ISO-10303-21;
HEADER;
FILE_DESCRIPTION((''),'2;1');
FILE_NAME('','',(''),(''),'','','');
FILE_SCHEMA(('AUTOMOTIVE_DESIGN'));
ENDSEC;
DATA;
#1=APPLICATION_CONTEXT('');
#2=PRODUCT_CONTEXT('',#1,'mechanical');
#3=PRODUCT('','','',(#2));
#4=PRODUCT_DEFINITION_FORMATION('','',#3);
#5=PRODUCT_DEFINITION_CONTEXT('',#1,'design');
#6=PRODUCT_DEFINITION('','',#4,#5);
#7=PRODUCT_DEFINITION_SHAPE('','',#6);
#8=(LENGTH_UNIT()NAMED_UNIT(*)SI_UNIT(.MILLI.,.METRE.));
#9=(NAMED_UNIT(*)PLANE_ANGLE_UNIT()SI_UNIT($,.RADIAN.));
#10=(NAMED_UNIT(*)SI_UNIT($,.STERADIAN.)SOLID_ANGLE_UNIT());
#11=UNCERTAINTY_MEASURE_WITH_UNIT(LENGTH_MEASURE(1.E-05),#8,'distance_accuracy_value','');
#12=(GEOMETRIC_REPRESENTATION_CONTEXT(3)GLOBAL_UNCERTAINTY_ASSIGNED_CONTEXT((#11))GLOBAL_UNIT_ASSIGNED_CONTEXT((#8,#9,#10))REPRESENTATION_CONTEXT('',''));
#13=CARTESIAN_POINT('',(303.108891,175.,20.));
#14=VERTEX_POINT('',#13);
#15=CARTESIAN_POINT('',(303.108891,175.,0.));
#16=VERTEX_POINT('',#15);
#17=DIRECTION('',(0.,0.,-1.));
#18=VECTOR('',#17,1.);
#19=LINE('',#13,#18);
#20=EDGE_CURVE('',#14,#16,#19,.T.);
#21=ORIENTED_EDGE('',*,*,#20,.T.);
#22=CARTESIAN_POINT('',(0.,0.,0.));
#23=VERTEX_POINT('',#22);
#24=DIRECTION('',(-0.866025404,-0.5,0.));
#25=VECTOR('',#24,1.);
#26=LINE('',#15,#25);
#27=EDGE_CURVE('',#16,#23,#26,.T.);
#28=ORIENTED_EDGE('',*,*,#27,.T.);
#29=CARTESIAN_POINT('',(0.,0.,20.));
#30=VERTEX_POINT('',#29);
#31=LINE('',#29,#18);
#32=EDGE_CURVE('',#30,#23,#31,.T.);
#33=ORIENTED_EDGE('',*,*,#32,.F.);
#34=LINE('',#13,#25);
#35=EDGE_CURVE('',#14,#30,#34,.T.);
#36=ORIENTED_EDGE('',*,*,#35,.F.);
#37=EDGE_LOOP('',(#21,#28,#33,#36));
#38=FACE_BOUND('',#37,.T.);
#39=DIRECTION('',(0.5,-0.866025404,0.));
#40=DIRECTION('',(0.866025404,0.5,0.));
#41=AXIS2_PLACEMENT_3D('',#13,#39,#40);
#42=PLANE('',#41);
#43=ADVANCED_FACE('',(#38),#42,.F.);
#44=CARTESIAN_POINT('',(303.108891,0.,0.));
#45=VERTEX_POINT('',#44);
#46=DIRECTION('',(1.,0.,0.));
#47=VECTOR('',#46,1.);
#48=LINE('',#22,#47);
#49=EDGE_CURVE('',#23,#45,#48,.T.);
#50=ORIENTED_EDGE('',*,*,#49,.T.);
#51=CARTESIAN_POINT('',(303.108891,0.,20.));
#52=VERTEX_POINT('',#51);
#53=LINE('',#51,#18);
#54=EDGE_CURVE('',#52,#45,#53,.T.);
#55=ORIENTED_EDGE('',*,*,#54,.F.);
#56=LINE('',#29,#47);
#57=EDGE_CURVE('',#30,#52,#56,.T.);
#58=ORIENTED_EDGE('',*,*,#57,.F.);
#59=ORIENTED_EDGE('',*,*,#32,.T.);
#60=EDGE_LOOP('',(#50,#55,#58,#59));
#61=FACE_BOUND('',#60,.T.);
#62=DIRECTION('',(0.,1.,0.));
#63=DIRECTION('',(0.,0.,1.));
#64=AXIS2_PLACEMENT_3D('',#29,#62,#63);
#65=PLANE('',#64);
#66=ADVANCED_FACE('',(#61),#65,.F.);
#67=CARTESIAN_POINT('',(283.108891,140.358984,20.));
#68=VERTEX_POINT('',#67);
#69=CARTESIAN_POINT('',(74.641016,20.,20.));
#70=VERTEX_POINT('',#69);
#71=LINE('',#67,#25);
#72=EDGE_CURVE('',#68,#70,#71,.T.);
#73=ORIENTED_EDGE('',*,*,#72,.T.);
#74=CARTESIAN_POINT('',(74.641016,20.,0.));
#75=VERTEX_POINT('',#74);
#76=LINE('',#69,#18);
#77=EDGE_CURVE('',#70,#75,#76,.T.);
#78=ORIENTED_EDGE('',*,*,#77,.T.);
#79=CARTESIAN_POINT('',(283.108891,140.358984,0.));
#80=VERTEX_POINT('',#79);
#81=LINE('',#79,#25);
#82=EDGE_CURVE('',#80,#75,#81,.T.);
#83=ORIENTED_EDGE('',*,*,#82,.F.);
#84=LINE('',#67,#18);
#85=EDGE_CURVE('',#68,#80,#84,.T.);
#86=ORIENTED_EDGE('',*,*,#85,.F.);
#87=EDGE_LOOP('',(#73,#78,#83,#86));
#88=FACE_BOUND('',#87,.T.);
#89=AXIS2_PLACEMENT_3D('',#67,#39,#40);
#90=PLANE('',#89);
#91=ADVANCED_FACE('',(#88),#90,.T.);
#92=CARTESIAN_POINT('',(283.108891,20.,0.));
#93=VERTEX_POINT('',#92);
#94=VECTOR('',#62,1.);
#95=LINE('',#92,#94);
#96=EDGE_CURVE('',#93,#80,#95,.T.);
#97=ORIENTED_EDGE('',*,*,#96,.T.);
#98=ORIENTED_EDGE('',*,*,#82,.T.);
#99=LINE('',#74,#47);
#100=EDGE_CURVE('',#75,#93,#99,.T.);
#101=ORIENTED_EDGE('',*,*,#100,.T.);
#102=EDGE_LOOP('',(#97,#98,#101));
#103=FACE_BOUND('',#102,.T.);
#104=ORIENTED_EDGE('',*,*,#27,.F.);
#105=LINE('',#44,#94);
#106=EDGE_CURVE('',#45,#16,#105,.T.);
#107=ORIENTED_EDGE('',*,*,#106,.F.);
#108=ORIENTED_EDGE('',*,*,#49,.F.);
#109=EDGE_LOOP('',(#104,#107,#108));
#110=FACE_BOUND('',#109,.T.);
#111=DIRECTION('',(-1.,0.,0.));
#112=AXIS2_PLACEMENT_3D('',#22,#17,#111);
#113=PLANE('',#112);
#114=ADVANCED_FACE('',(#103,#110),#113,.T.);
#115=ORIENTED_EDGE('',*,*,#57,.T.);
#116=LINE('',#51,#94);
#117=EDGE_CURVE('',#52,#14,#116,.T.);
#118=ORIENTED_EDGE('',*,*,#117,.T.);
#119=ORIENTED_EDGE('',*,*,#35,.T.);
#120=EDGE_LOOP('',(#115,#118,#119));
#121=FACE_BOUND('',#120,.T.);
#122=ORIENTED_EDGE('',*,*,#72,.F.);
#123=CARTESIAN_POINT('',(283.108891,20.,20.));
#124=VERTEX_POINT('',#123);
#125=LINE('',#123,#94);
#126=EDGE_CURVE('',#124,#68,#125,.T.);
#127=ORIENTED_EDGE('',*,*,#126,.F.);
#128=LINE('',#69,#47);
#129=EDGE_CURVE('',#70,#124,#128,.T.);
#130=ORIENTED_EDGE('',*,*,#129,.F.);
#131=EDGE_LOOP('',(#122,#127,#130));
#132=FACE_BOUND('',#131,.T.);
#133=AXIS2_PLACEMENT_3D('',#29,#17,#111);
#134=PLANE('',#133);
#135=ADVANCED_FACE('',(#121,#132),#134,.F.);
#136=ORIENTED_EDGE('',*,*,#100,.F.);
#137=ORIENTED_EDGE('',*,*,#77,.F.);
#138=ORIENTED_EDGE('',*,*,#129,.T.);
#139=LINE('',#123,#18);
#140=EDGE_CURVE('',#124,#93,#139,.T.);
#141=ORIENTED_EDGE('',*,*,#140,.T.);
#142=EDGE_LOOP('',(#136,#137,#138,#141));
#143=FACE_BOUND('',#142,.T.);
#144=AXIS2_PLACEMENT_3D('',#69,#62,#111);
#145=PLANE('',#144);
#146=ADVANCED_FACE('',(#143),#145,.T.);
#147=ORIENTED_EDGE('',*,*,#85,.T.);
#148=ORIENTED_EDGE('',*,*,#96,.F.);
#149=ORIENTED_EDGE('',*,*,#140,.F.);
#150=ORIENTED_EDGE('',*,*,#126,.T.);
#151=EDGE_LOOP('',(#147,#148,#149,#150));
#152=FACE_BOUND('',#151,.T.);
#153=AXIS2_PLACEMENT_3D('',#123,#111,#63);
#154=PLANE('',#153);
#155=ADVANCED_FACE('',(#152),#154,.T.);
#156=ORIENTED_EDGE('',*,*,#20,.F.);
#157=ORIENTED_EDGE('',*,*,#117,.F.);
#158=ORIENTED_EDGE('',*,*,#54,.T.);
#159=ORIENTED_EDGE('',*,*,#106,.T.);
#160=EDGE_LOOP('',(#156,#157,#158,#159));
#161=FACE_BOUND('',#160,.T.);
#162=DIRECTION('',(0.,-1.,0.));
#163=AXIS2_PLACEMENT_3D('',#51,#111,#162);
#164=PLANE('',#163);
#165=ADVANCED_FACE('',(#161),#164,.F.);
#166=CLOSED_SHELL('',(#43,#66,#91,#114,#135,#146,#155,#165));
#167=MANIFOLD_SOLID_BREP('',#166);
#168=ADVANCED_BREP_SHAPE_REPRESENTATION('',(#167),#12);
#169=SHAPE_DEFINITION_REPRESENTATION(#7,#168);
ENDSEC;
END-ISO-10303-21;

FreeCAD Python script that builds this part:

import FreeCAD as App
import Part
import Sketcher

V = App.Vector
Q = App.Units.Quantity

doc = App.newDocument("Part")
body = doc.addObject("PartDesign::Body", "Body")

sketch1 = body.newObject("Sketcher::SketchObject", "Sketch")
sketch1.AttachmentSupport = (doc.getObject("XY_Plane"), [""])
sketch1.MapMode = "FlatFace"
sketch1.addGeometry([
    Part.LineSegment(V(0, 0, 0), V(303, 0, 0)),
    Part.LineSegment(V(303, 0, 0), V(303, 175, 0)),
    Part.LineSegment(V(303, 175, 0), V(0, 0, 0)),
    Part.LineSegment(V(75, 20, 0), V(283, 140, 0)),
    Part.LineSegment(V(283, 140, 0), V(283, 20, 0)),
    Part.LineSegment(V(283, 20, 0), V(75, 20, 0)),
], False)
sketch1.addConstraint([
    Sketcher.Constraint("Coincident", 0, 2, 1, 1),
    Sketcher.Constraint("Coincident", 1, 2, 2, 1),
    Sketcher.Constraint("Coincident", 2, 2, 0, 1),
    Sketcher.Constraint("Coincident", 3, 2, 4, 1),
    Sketcher.Constraint("Coincident", 4, 2, 5, 1),
    Sketcher.Constraint("Coincident", 5, 2, 3, 1),
    Sketcher.Constraint("Horizontal", 0),
    Sketcher.Constraint("Vertical", 1),
    Sketcher.Constraint("Vertical", 4),
    Sketcher.Constraint("Horizontal", 5),
    Sketcher.Constraint("Coincident", 2, 2, -1, 1),
    Sketcher.Constraint("Parallel", 2, 3),
    Sketcher.Constraint("DistanceY", 1, 1, 1, 2, Q("175 mm")),
    Sketcher.Constraint("Angle", 2, Q("-150 deg")),
    Sketcher.Constraint("DistanceY", -1, 1, 4, 2, Q("20 mm")),
    Sketcher.Constraint("DistanceX", 3, 2, 1, 2, Q("20 mm")),
    Sketcher.Constraint("DistanceX", 5, 2, 5, 1, Q("208.467875 mm")),
])
pad1 = body.newObject("PartDesign::Pad", "Pad")
pad1.Profile = sketch1
pad1.Length = 20

doc.recompute()
